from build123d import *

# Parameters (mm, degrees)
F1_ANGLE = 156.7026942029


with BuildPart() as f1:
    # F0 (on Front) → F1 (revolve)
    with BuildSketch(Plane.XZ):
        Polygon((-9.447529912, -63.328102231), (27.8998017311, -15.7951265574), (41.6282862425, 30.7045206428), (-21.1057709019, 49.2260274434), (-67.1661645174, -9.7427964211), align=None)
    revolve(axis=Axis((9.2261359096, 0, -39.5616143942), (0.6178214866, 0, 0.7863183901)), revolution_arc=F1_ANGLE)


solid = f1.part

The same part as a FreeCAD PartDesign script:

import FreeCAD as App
import Part
import Sketcher
Q = App.Units.Quantity

doc = App.newDocument("Part")
params = doc.addObject("Spreadsheet::Sheet", "Params")
for row, (alias, value) in enumerate([
    ("revolution_angle", "156.702694 deg"),
], start=1):
    params.set(f"A{row}", alias)
    params.set(f"B{row}", "=" + value)
    params.setAlias(f"B{row}", alias)

body = doc.addObject("PartDesign::Body", "Body")

# Sketch on XZ plane
sketch1 = body.newObject("Sketcher::SketchObject", "Sketch")
sketch1.AttachmentSupport = (doc.getObject("XZ_Plane"), [""])
sketch1.MapMode = "FlatFace"
sketch1.addGeometry([
    Part.LineSegment(App.Vector(-9, -63, 0), App.Vector(28, -16, 0)),  # 0
    Part.LineSegment(App.Vector(28, -16, 0), App.Vector(42, 31, 0)),  # 1
    Part.LineSegment(App.Vector(42, 31, 0), App.Vector(-21, 49, 0)),  # 2
    Part.LineSegment(App.Vector(-21, 49, 0), App.Vector(-67, -10, 0)),  # 3
    Part.LineSegment(App.Vector(-67, -10, 0), App.Vector(-9, -63, 0)),  # 4
], False)
sketch1.addGeometry(Part.LineSegment(App.Vector(-9, -63, 0), App.Vector(56, 20, 0)), True)  # axis
sketch1.addConstraint([
    Sketcher.Constraint("Coincident", 0, 2, 1, 1),
    Sketcher.Constraint("Coincident", 1, 2, 2, 1),
    Sketcher.Constraint("Coincident", 2, 2, 3, 1),
    Sketcher.Constraint("Coincident", 3, 2, 4, 1),
    Sketcher.Constraint("Coincident", 4, 2, 0, 1),
    Sketcher.Constraint("Coincident", 5, 1, 4, 2),
    Sketcher.Constraint("Perpendicular", 1, 2),
    Sketcher.Constraint("Parallel", 0, 5),
    Sketcher.Constraint("Distance", 1, Q("48.483899 mm")),
    Sketcher.Constraint("DistanceX", -1, 1, 0, 2, Q("27.899802 mm")),
    Sketcher.Constraint("Distance", 2, Q("65.41107 mm")),
    Sketcher.Constraint("Distance", 4, Q("78.75802 mm")),
    Sketcher.Constraint("DistanceY", -1, 1, 1, 2, Q("30.704521 mm")),
    Sketcher.Constraint("DistanceX", 2, 2, -1, 1, Q("21.105771 mm")),
    Sketcher.Constraint("DistanceX", 4, 2, -1, 1, Q("9.44753 mm")),
    Sketcher.Constraint("DistanceY", 0, 2, 3, 2, Q("6.05233 mm")),
    Sketcher.Constraint("DistanceX", 3, 2, 1, 2, Q("108.794451 mm")),
    Sketcher.Constraint("DistanceY", 5, 2, 2, 2, Q("29.601222 mm")),
])
revolution = body.newObject("PartDesign::Revolution", "Revolution")
revolution.Profile = sketch1
revolution.ReferenceAxis = (sketch1, ["Axis0"])
revolution.setExpression("Angle", "Params.revolution_angle")

doc.recompute()
